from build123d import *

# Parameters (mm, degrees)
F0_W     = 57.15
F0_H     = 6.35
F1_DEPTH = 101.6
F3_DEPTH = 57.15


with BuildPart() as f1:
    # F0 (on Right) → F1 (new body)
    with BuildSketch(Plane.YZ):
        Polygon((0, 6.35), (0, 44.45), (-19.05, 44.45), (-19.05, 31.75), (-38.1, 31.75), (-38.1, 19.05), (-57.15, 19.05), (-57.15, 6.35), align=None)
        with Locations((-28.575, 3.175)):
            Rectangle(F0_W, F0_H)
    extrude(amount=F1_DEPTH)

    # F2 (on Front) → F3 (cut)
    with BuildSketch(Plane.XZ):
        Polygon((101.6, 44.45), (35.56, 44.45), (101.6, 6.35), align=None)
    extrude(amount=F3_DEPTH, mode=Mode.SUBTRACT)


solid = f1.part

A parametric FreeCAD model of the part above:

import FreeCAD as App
import Part
import Sketcher

V = App.Vector
Q = App.Units.Quantity

doc = App.newDocument("Part")
body = doc.addObject("PartDesign::Body", "Body")

sketch1 = doc.addObject("Sketcher::SketchObject", "Sketch")
body.addObject(sketch1)
sketch1.AttachmentSupport = (doc.YZ_Plane, [""])
sketch1.MapMode = "FlatFace"
sketch1.addGeometry(Part.LineSegment(V(0, 44.45, 0), V(-19.05, 44.45, 0)), False)
sketch1.addGeometry(Part.LineSegment(V(-19.05, 44.45, 0), V(-19.05, 31.75, 0)), False)
sketch1.addGeometry(Part.LineSegment(V(-19.05, 31.75, 0), V(-38.1, 31.75, 0)), False)
sketch1.addGeometry(Part.LineSegment(V(-38.1, 31.75, 0), V(-38.1, 19.05, 0)), False)
sketch1.addGeometry(Part.LineSegment(V(-38.1, 19.05, 0), V(-57.15, 19.05, 0)), False)
sketch1.addGeometry(Part.LineSegment(V(-57.15, 19.05, 0), V(-57.15, 0, 0)), False)
sketch1.addGeometry(Part.LineSegment(V(-57.15, 0, 0), V(0, 0, 0)), False)
sketch1.addGeometry(Part.LineSegment(V(0, 0, 0), V(0, 44.45, 0)), False)
sketch1.addConstraint(Sketcher.Constraint("Coincident", 0, 2, 1, 1))
sketch1.addConstraint(Sketcher.Constraint("Coincident", 1, 2, 2, 1))
sketch1.addConstraint(Sketcher.Constraint("Coincident", 2, 2, 3, 1))
sketch1.addConstraint(Sketcher.Constraint("Coincident", 3, 2, 4, 1))
sketch1.addConstraint(Sketcher.Constraint("Coincident", 4, 2, 5, 1))
sketch1.addConstraint(Sketcher.Constraint("Coincident", 5, 2, 6, 1))
sketch1.addConstraint(Sketcher.Constraint("Coincident", 6, 2, 7, 1))
sketch1.addConstraint(Sketcher.Constraint("Coincident", 7, 2, 0, 1))
sketch1.addConstraint(Sketcher.Constraint("Horizontal", 0))
sketch1.addConstraint(Sketcher.Constraint("Vertical", 1))
sketch1.addConstraint(Sketcher.Constraint("Horizontal", 2))
sketch1.addConstraint(Sketcher.Constraint("Vertical", 3))
sketch1.addConstraint(Sketcher.Constraint("Horizontal", 4))
sketch1.addConstraint(Sketcher.Constraint("Vertical", 5))
sketch1.addConstraint(Sketcher.Constraint("Horizontal", 6))
sketch1.addConstraint(Sketcher.Constraint("Vertical", 7))
sketch1.addConstraint(Sketcher.Constraint("Coincident", 6, 2, -1, 1))
sketch1.addConstraint(Sketcher.Constraint("Equal", 0, 2))
sketch1.addConstraint(Sketcher.Constraint("Equal", 2, 4))
sketch1.addConstraint(Sketcher.Constraint("Equal", 1, 3))
sketch1.addConstraint(Sketcher.Constraint("Equal", 4, 5))
sketch1.addConstraint(Sketcher.Constraint("DistanceY", 1, 2, 1, 1, Q("0.5 in")))
sketch1.addConstraint(Sketcher.Constraint("DistanceX", 0, 2, 0, 1, Q("0.75 in")))
pad1 = doc.addObject("PartDesign::Pad", "Pad")
body.addObject(pad1)
pad1.Profile = sketch1
pad1.Length = Q("4 in")

sketch2 = doc.addObject("Sketcher::SketchObject", "Sketch001")
body.addObject(sketch2)
sketch2.AttachmentSupport = (doc.XZ_Plane, [""])
sketch2.MapMode = "FlatFace"
sketch2.addGeometry(Part.LineSegment(V(101.6, 44.45, 0), V(35.56, 44.45, 0)), False)
sketch2.addGeometry(Part.LineSegment(V(35.56, 44.45, 0), V(101.6, 6.35, 0)), False)
sketch2.addGeometry(Part.LineSegment(V(101.6, 6.35, 0), V(101.6, 44.45, 0)), False)
sketch2.addConstraint(Sketcher.Constraint("Coincident", 0, 2, 1, 1))
sketch2.addConstraint(Sketcher.Constraint("Coincident", 1, 2, 2, 1))
sketch2.addConstraint(Sketcher.Constraint("Coincident", 2, 2, 0, 1))
sketch2.addConstraint(Sketcher.Constraint("Horizontal", 0))
sketch2.addConstraint(Sketcher.Constraint("Vertical", 2))
sketch2.addConstraint(Sketcher.Constraint("DistanceX", 0, 2, 0, 1, Q("2.6 in")))
sketch2.addConstraint(Sketcher.Constraint("DistanceY", 2, 1, 2, 2, Q("1.5 in")))
sketch2.addConstraint(Sketcher.Constraint("DistanceX", -1, 1, 1, 2, Q("4 in")))
sketch2.addConstraint(Sketcher.Constraint("DistanceY", -1, 1, 0, 2, Q("1.75 in")))
pocket1 = doc.addObject("PartDesign::Pocket", "Pocket")
body.addObject(pocket1)
pocket1.Profile = sketch2
pocket1.Length = Q("2.25 in")
pocket1.Reversed = True

doc.recompute()
